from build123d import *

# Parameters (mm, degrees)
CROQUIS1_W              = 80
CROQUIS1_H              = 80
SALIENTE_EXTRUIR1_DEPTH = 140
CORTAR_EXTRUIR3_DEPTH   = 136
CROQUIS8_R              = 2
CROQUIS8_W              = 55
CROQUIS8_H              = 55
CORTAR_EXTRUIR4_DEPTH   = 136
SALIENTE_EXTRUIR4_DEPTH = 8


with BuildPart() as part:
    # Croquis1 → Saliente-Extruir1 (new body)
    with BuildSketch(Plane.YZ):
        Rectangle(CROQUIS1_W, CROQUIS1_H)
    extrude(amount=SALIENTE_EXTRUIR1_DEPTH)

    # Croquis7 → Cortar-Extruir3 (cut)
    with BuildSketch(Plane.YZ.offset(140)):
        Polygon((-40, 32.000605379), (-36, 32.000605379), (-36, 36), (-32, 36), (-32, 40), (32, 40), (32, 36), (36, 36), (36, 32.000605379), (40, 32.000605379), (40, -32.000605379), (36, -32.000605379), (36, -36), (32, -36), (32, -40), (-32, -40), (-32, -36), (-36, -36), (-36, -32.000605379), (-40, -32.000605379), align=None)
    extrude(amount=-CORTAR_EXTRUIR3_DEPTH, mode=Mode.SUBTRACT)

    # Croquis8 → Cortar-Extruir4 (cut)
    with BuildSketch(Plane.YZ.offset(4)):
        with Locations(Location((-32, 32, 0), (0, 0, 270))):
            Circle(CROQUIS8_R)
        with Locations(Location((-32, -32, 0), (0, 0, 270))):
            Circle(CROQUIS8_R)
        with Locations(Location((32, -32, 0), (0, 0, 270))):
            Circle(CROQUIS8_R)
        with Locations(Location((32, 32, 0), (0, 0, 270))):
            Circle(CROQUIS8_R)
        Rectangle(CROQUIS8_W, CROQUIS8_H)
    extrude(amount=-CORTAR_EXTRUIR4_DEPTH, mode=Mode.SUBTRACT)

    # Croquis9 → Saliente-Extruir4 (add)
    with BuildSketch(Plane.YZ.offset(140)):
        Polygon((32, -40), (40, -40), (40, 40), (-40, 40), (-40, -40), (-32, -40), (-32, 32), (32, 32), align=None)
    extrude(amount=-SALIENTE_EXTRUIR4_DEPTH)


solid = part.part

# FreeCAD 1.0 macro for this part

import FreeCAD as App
import Part
import Sketcher

V = App.Vector
Q = App.Units.Quantity

doc = App.newDocument("Part")
params = doc.addObject("Spreadsheet::Sheet", "Params")
for row, (alias, value) in enumerate([
    ("sketch1_width", "80 mm"),
    ("pad1_length", "140 mm"),
    ("sketch2_width", "4 mm"),
    ("sketch2_width2", "64 mm"),
    ("pocket1_length", "136 mm"),
    ("sketch3_diameter", "4 mm"),
    ("sketch3_width", "55 mm"),
    ("pocket2_length", "136 mm"),
    ("sketch4_width", "8 mm"),
    ("sketch4_width2", "80 mm"),
    ("sketch4_height", "72 mm"),
    ("pad2_length", "8 mm"),
], start=1):
    params.set(f"A{row}", alias)
    params.set(f"B{row}", "=" + value)
    params.setAlias(f"B{row}", alias)

body = doc.addObject("PartDesign::Body", "Body")

# Sketch on YZ plane
sketch1 = body.newObject("Sketcher::SketchObject", "Sketch")
sketch1.AttachmentSupport = (doc.getObject("YZ_Plane"), [""])
sketch1.MapMode = "FlatFace"
sketch1.addGeometry([
    Part.LineSegment(V(-40, 40, 0), V(-40, -40, 0)),
    Part.LineSegment(V(-40, -40, 0), V(40, -40, 0)),
    Part.LineSegment(V(40, -40, 0), V(40, 40, 0)),
    Part.LineSegment(V(40, 40, 0), V(-40, 40, 0)),
], False)
sketch1.addConstraint([
    Sketcher.Constraint("Coincident", 0, 2, 1, 1),
    Sketcher.Constraint("Coincident", 1, 2, 2, 1),
    Sketcher.Constraint("Coincident", 2, 2, 3, 1),
    Sketcher.Constraint("Coincident", 3, 2, 0, 1),
    Sketcher.Constraint("Vertical", 0),
    Sketcher.Constraint("Horizontal", 1),
    Sketcher.Constraint("Vertical", 2),
    Sketcher.Constraint("Horizontal", 3),
    Sketcher.Constraint("Symmetric", 0, 2, 2, 2, -1, 1),
    Sketcher.Constraint("Equal", 3, 0),
    Sketcher.Constraint("DistanceX", 1, 1, 1, 2, Q("80 mm")),
])
sketch1.setExpression("Constraints[10]", "Params.sketch1_width")
pad1 = body.newObject("PartDesign::Pad", "Pad")
pad1.Profile = sketch1
pad1.setExpression("Length", "Params.pad1_length")

# Sketch on YZ plane
sketch2 = body.newObject("Sketcher::SketchObject", "Sketch001")
sketch2.AttachmentSupport = (doc.getObject("YZ_Plane"), [""])
sketch2.MapMode = "FlatFace"
sketch2.AttachmentOffset = App.Placement(V(0, 0, 140), App.Rotation())
sketch2.addGeometry([
    Part.LineSegment(V(-36, 32, 0), V(-40, 32, 0)),  # 0
    Part.LineSegment(V(-40, 32, 0), V(-40, -32, 0)),  # 1
    Part.LineSegment(V(-40, -32, 0), V(-36, -32, 0)),  # 2
    Part.LineSegment(V(-36, -32, 0), V(-36, -36, 0)),  # 3
    Part.LineSegment(V(-36, -36, 0), V(-32, -36, 0)),  # 4
    Part.LineSegment(V(-32, -36, 0), V(-32, -40, 0)),  # 5
    Part.LineSegment(V(-32, -40, 0), V(32, -40, 0)),  # 6
    Part.LineSegment(V(32, -40, 0), V(32, -36, 0)),  # 7
    Part.LineSegment(V(32, -36, 0), V(36, -36, 0)),  # 8
    Part.LineSegment(V(36, -36, 0), V(36, -32, 0)),  # 9
    Part.LineSegment(V(36, -32, 0), V(40, -32, 0)),  # 10
    Part.LineSegment(V(40, -32, 0), V(40, 32, 0)),  # 11
    Part.LineSegment(V(40, 32, 0), V(36, 32, 0)),  # 12
    Part.LineSegment(V(36, 32, 0), V(36, 36, 0)),  # 13
    Part.LineSegment(V(36, 36, 0), V(32, 36, 0)),  # 14
    Part.LineSegment(V(32, 36, 0), V(32, 40, 0)),  # 15
    Part.LineSegment(V(32, 40, 0), V(-32, 40, 0)),  # 16
    Part.LineSegment(V(-32, 40, 0), V(-32, 36, 0)),  # 17
    Part.LineSegment(V(-32, 36, 0), V(-36, 36, 0)),  # 18
    Part.LineSegment(V(-36, 36, 0), V(-36, 32, 0)),  # 19
], False)
sketch2.addConstraint([
    Sketcher.Constraint("Coincident", 0, 2, 1, 1),
    Sketcher.Constraint("Coincident", 1, 2, 2, 1),
    Sketcher.Constraint("Coincident", 2, 2, 3, 1),
    Sketcher.Constraint("Coincident", 3, 2, 4, 1),
    Sketcher.Constraint("Coincident", 4, 2, 5, 1),
    Sketcher.Constraint("Coincident", 5, 2, 6, 1),
    Sketcher.Constraint("Coincident", 6, 2, 7, 1),
    Sketcher.Constraint("Coincident", 7, 2, 8, 1),
    Sketcher.Constraint("Coincident", 8, 2, 9, 1),
    Sketcher.Constraint("Coincident", 9, 2, 10, 1),
    Sketcher.Constraint("Coincident", 10, 2, 11, 1),
    Sketcher.Constraint("Coincident", 11, 2, 12, 1),
    Sketcher.Constraint("Coincident", 12, 2, 13, 1),
    Sketcher.Constraint("Coincident", 13, 2, 14, 1),
    Sketcher.Constraint("Coincident", 14, 2, 15, 1),
    Sketcher.Constraint("Coincident", 15, 2, 16, 1),
    Sketcher.Constraint("Coincident", 16, 2, 17, 1),
    Sketcher.Constraint("Coincident", 17, 2, 18, 1),
    Sketcher.Constraint("Coincident", 18, 2, 19, 1),
    Sketcher.Constraint("Coincident", 19, 2, 0, 1),
    Sketcher.Constraint("Horizontal", 0),
    Sketcher.Constraint("Vertical", 1),
    Sketcher.Constraint("Horizontal", 2),
    Sketcher.Constraint("Vertical", 3),
    Sketcher.Constraint("Horizontal", 4),
    Sketcher.Constraint("Vertical", 5),
    Sketcher.Constraint("Horizontal", 6),
    Sketcher.Constraint("Vertical", 7),
    Sketcher.Constraint("Horizontal", 8),
    Sketcher.Constraint("Vertical", 9),
    Sketcher.Constraint("Horizontal", 10),
    Sketcher.Constraint("Vertical", 11),
    Sketcher.Constraint("Horizontal", 12),
    Sketcher.Constraint("Vertical", 13),
    Sketcher.Constraint("Horizontal", 14),
    Sketcher.Constraint("Vertical", 15),
    Sketcher.Constraint("Horizontal", 16),
    Sketcher.Constraint("Vertical", 17),
    Sketcher.Constraint("Horizontal", 18),
    Sketcher.Constraint("Vertical", 19),
    Sketcher.Constraint("Symmetric", 0, 2, 10, 2, -1, 1),
    Sketcher.Constraint("Symmetric", 2, 2, 12, 2, -1, 1),
    Sketcher.Constraint("Symmetric", 4, 2, 14, 2, -1, 1),
    Sketcher.Constraint("Symmetric", 6, 2, 16, 2, -1, 1),
    Sketcher.Constraint("Symmetric", 8, 2, 18, 2, -1, 1),
    Sketcher.Constraint("Symmetric", 4, 2, 7, 2, -2),
    Sketcher.Constraint("Symmetric", 2, 2, 9, 2, -2),
    Sketcher.Constraint("Equal", 2, 4),
    Sketcher.Constraint("Equal", 18, 5),
    Sketcher.Constraint("DistanceX", 0, 2, 0, 1, Q("4 mm")),
    Sketcher.Constraint("DistanceX", 6, 1, 6, 2, Q("64 mm")),
    Sketcher.Constraint("DistanceY", 3, 2, -1, 1, Q("36 mm")),
    Sketcher.Constraint("DistanceY", 1, 2, 1, 1, Q("64.001211 mm")),
])
sketch2.setExpression("Constraints[49]", "Params.sketch2_width")
sketch2.setExpression("Constraints[50]", "Params.sketch2_width2")
pocket1 = body.newObject("PartDesign::Pocket", "Pocket")
pocket1.Profile = sketch2
pocket1.setExpression("Length", "Params.pocket1_length")

# Sketch on YZ plane
sketch3 = body.newObject("Sketcher::SketchObject", "Sketch002")
sketch3.AttachmentSupport = (doc.getObject("YZ_Plane"), [""])
sketch3.MapMode = "FlatFace"
sketch3.AttachmentOffset = App.Placement(V(0, 0, 4), App.Rotation())
sketch3.addGeometry([
    Part.Circle(V(-32, 32, 0), V(0, 0, 1), 2),  # 0
    Part.Circle(V(-32, -32, 0), V(0, 0, 1), 2),  # 1
    Part.Circle(V(32, -32, 0), V(0, 0, 1), 2),  # 2
    Part.Circle(V(32, 32, 0), V(0, 0, 1), 2),  # 3
    Part.LineSegment(V(-27.5, 27.5, 0), V(-27.5, -27.5, 0)),  # 4
    Part.LineSegment(V(-27.5, -27.5, 0), V(27.5, -27.5, 0)),  # 5
    Part.LineSegment(V(27.5, -27.5, 0), V(27.5, 27.5, 0)),  # 6
    Part.LineSegment(V(27.5, 27.5, 0), V(-27.5, 27.5, 0)),  # 7
], False)
sketch3.addConstraint([
    Sketcher.Constraint("Coincident", 4, 2, 5, 1),
    Sketcher.Constraint("Coincident", 5, 2, 6, 1),
    Sketcher.Constraint("Coincident", 6, 2, 7, 1),
    Sketcher.Constraint("Coincident", 7, 2, 4, 1),
    Sketcher.Constraint("Vertical", 4),
    Sketcher.Constraint("Horizontal", 5),
    Sketcher.Constraint("Vertical", 6),
    Sketcher.Constraint("Horizontal", 7),
    Sketcher.Constraint("Equal", 0, 1),
    Sketcher.Constraint("Equal", 1, 2),
    Sketcher.Constraint("Equal", 2, 3),
    Sketcher.Constraint("Symmetric", 0, 3, 2, 3, -1, 1),
    Sketcher.Constraint("Symmetric", 1, 3, 3, 3, -1, 1),
    Sketcher.Constraint("Symmetric", 4, 2, 6, 2, -1, 1),
    Sketcher.Constraint("Symmetric", 1, 3, 2, 3, -2),
    Sketcher.Constraint("Equal", 7, 4),
    Sketcher.Constraint("Diameter", 0, Q("4 mm")),
    Sketcher.Constraint("DistanceX", 5, 1, 5, 2, Q("55 mm")),
    Sketcher.Constraint("DistanceX", 0, 3, -1, 1, Q("32 mm")),
    Sketcher.Constraint("DistanceY", -1, 1, 0, 3, Q("32 mm")),
])
sketch3.setExpression("Constraints[16]", "Params.sketch3_diameter")
sketch3.setExpression("Constraints[17]", "Params.sketch3_width")
pocket2 = body.newObject("PartDesign::Pocket", "Pocket001")
pocket2.Profile = sketch3
pocket2.setExpression("Length", "Params.pocket2_length")

# Sketch on YZ plane
sketch4 = body.newObject("Sketcher::SketchObject", "Sketch003")
sketch4.AttachmentSupport = (doc.getObject("YZ_Plane"), [""])
sketch4.MapMode = "FlatFace"
sketch4.AttachmentOffset = App.Placement(V(0, 0, 140), App.Rotation())
sketch4.addGeometry([
    Part.LineSegment(V(32, -40, 0), V(40, -40, 0)),  # 0
    Part.LineSegment(V(40, -40, 0), V(40, 40, 0)),  # 1
    Part.LineSegment(V(40, 40, 0), V(-40, 40, 0)),  # 2
    Part.LineSegment(V(-40, 40, 0), V(-40, -40, 0)),  # 3
    Part.LineSegment(V(-40, -40, 0), V(-32, -40, 0)),  # 4
    Part.LineSegment(V(-32, -40, 0), V(-32, 32, 0)),  # 5
    Part.LineSegment(V(-32, 32, 0), V(32, 32, 0)),  # 6
    Part.LineSegment(V(32, 32, 0), V(32, -40, 0)),  # 7
], False)
sketch4.addConstraint([
    Sketcher.Constraint("Coincident", 0, 2, 1, 1),
    Sketcher.Constraint("Coincident", 1, 2, 2, 1),
    Sketcher.Constraint("Coincident", 2, 2, 3, 1),
    Sketcher.Constraint("Coincident", 3, 2, 4, 1),
    Sketcher.Constraint("Coincident", 4, 2, 5, 1),
    Sketcher.Constraint("Coincident", 5, 2, 6, 1),
    Sketcher.Constraint("Coincident", 6, 2, 7, 1),
    Sketcher.Constraint("Coincident", 7, 2, 0, 1),
    Sketcher.Constraint("Horizontal", 0),
    Sketcher.Constraint("Vertical", 1),
    Sketcher.Constraint("Horizontal", 2),
    Sketcher.Constraint("Vertical", 3),
    Sketcher.Constraint("Horizontal", 4),
    Sketcher.Constraint("Vertical", 5),
    Sketcher.Constraint("Horizontal", 6),
    Sketcher.Constraint("Vertical", 7),
    Sketcher.Constraint("Symmetric", 0, 2, 2, 2, -1, 1),
    Sketcher.Constraint("Symmetric", 4, 2, 7, 2, -2),
    Sketcher.Constraint("Equal", 2, 1),
    Sketcher.Constraint("DistanceX", 0, 1, 0, 2, Q("8 mm")),
    Sketcher.Constraint("DistanceX", 2, 2, 2, 1, Q("80 mm")),
    Sketcher.Constraint("DistanceY", 5, 1, 5, 2, Q("72 mm")),
])
sketch4.setExpression("Constraints[19]", "Params.sketch4_width")
sketch4.setExpression("Constraints[20]", "Params.sketch4_width2")
sketch4.setExpression("Constraints[21]", "Params.sketch4_height")
pad2 = body.newObject("PartDesign::Pad", "Pad001")
pad2.Profile = sketch4
pad2.setExpression("Length", "Params.pad2_length")
pad2.Reversed = True

doc.recompute()
